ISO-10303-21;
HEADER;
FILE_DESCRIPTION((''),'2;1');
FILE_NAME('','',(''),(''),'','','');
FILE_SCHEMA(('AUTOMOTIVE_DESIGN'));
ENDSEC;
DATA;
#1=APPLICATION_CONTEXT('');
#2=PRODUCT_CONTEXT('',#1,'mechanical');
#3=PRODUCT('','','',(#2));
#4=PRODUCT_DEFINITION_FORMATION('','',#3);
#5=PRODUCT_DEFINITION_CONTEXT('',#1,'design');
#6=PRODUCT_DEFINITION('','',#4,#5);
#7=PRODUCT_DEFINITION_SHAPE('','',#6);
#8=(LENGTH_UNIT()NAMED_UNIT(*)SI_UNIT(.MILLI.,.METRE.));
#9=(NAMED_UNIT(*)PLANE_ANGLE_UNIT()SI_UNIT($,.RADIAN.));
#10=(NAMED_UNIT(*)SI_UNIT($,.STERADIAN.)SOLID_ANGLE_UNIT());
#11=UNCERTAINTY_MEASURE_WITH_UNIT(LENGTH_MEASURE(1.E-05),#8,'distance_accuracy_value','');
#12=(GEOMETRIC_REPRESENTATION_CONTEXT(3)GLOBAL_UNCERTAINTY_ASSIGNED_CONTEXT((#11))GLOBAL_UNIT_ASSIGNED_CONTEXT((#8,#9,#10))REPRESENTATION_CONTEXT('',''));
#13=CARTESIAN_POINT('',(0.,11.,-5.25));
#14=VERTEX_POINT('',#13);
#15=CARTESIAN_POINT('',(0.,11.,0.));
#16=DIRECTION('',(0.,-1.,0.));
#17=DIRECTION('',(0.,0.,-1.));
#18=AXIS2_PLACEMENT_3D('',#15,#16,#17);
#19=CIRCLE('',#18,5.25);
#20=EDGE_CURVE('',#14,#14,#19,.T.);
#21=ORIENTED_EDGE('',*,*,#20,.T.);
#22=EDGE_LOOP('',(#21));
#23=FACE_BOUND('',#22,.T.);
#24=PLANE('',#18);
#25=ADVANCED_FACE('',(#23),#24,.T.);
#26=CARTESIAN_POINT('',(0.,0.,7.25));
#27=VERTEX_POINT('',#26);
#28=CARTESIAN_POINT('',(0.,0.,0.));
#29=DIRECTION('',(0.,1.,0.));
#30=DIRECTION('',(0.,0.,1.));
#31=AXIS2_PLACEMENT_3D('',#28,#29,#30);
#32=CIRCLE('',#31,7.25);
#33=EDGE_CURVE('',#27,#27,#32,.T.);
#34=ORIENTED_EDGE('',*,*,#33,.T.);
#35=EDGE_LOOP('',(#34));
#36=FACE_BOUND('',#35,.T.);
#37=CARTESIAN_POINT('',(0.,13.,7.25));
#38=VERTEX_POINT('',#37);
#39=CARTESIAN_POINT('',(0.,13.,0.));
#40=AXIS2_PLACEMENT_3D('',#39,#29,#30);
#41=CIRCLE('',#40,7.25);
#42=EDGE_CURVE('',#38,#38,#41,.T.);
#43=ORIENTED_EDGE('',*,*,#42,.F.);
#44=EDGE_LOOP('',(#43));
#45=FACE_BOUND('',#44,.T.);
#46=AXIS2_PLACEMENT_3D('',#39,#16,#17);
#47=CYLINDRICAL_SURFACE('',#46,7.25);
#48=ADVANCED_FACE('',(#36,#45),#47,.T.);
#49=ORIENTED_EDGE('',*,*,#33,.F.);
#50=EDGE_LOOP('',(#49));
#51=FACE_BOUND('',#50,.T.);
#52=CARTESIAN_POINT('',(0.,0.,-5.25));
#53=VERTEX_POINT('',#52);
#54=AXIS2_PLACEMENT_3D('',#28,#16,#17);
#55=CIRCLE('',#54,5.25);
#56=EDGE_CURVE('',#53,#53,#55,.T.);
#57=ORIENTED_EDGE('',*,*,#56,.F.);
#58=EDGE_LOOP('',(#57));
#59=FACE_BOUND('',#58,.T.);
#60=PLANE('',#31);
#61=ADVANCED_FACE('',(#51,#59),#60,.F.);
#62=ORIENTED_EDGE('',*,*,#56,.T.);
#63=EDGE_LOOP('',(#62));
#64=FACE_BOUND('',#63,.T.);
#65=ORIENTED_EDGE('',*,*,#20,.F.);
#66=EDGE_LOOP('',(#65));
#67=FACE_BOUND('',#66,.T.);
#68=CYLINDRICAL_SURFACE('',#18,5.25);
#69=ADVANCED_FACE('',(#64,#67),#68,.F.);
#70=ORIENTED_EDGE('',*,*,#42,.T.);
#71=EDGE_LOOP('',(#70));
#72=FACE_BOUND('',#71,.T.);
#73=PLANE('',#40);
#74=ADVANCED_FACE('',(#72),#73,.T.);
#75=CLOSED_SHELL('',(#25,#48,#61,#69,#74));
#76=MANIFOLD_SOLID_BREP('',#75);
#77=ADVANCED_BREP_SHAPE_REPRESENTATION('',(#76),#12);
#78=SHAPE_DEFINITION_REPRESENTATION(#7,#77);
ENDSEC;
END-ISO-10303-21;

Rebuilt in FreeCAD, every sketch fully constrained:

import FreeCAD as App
import Part
import Sketcher
Q = App.Units.Quantity

doc = App.newDocument("Part")
body = doc.addObject("PartDesign::Body", "Body")

sketch1 = body.newObject("Sketcher::SketchObject", "Sketch")
sketch1.AttachmentSupport = (doc.getObject("XZ_Plane"), [""])
sketch1.MapMode = "FlatFace"
sketch1.addGeometry(Part.Circle(App.Vector(0, 0, 0), App.Vector(0, 0, 1), 7), False)
sketch1.addConstraint(Sketcher.Constraint("Coincident", 0, 3, -1, 1))
sketch1.addConstraint(Sketcher.Constraint("Diameter", 0, Q("14.5 mm")))
pad1 = body.newObject("PartDesign::Pad", "Pad")
pad1.Profile = sketch1
pad1.Length = 13
pad1.Reversed = True

sketch2 = body.newObject("Sketcher::SketchObject", "Sketch001")
sketch2.AttachmentSupport = (doc.getObject("XZ_Plane"), [""])
sketch2.MapMode = "FlatFace"
sketch2.addGeometry(Part.Circle(App.Vector(0, 0, 0), App.Vector(0, 0, 1), 5), False)
sketch2.addConstraint(Sketcher.Constraint("Coincident", 0, 3, -1, 1))
sketch2.addConstraint(Sketcher.Constraint("Diameter", 0, Q("10.5 mm")))
pocket1 = body.newObject("PartDesign::Pocket", "Pocket")
pocket1.Profile = sketch2
pocket1.Length = 11

doc.recompute()
